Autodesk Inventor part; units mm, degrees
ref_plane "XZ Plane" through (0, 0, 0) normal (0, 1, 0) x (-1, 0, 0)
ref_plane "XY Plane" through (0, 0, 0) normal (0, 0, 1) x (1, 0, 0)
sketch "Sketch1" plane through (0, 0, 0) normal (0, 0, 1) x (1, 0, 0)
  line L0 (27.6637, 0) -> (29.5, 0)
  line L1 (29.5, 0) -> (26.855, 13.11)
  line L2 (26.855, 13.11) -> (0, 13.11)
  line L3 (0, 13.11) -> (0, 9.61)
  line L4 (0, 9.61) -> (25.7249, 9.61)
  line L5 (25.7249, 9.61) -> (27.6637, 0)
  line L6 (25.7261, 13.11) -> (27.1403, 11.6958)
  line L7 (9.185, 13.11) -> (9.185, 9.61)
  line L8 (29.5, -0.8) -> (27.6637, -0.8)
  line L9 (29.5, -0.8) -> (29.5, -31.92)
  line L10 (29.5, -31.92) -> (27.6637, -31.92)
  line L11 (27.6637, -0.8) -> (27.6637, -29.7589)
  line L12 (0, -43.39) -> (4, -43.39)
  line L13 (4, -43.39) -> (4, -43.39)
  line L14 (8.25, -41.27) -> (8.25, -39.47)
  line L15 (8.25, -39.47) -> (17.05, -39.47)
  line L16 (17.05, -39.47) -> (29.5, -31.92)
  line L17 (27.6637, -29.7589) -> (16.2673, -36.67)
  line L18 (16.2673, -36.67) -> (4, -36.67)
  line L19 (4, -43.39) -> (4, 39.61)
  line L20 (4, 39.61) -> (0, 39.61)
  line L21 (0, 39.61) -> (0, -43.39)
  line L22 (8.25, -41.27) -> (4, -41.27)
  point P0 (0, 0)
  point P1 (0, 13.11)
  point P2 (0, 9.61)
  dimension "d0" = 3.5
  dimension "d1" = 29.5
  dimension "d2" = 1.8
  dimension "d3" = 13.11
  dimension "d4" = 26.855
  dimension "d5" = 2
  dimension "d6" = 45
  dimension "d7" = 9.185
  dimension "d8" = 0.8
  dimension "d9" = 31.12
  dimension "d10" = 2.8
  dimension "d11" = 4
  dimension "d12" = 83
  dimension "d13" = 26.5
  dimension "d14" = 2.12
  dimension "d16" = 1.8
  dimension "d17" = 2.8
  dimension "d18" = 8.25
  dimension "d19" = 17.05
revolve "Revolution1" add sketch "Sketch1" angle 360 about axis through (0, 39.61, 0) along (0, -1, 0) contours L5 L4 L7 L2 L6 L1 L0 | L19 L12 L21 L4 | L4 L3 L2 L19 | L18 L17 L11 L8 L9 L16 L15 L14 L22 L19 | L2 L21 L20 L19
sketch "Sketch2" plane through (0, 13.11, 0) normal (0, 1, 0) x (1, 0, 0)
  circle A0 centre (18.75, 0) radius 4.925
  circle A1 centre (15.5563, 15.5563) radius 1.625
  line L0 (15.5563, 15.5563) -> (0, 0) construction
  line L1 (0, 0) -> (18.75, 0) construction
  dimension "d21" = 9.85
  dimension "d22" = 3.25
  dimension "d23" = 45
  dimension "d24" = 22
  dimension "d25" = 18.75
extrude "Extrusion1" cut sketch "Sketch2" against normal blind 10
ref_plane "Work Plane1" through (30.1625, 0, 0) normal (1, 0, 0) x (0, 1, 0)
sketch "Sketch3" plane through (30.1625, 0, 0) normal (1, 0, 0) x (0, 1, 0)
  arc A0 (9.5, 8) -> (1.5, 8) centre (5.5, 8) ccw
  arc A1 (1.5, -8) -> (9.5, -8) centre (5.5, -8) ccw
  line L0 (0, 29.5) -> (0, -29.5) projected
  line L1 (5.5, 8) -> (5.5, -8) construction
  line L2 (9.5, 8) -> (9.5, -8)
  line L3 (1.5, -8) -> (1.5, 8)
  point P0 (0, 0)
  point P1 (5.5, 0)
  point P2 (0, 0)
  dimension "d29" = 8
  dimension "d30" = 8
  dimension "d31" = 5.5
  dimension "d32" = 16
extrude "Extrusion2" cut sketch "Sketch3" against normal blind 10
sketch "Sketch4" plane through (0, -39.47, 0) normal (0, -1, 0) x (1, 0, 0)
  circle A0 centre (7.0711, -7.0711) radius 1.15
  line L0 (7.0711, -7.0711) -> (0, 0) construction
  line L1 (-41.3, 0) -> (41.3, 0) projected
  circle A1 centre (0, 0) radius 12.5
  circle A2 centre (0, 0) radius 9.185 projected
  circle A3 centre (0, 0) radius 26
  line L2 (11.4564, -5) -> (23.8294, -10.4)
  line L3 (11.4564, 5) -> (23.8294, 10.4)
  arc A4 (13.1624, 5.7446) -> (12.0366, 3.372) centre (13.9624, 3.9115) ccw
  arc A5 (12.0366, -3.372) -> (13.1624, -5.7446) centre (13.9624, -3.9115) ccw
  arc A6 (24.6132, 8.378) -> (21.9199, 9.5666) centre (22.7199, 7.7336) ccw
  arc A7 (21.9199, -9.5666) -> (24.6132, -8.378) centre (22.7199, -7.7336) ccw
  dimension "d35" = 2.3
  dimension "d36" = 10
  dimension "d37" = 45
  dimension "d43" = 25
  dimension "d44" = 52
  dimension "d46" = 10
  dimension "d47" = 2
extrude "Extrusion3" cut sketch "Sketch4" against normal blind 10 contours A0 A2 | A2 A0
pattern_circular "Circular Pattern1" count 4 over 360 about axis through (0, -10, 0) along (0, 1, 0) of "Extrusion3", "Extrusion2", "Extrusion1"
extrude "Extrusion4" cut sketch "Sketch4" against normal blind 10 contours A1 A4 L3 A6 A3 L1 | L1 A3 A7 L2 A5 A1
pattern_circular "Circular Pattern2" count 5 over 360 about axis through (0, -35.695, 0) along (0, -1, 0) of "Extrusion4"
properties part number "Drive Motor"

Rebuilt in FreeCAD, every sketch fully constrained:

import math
import FreeCAD as App
import Part
import Sketcher
Q = App.Units.Quantity

doc = App.newDocument("Part")
body = doc.addObject("PartDesign::Body", "Body")
body.AllowCompound = True

sketch1 = body.newObject("Sketcher::SketchObject", "Sketch")
sketch1.AttachmentSupport = (doc.getObject("XY_Plane"), [""])
sketch1.MapMode = "FlatFace"
sketch1.addGeometry([
    Part.LineSegment(App.Vector(25.7249, 9.61, 0), App.Vector(27.6637, 0, 0)),
    Part.LineSegment(App.Vector(27.6637, 0, 0), App.Vector(29.5, 0, 0)),
    Part.LineSegment(App.Vector(29.5, 0, 0), App.Vector(27.14032, 11.695804, 0)),
    Part.LineSegment(App.Vector(27.1403, 11.6958, 0), App.Vector(25.7261, 13.11, 0)),
    Part.LineSegment(App.Vector(25.7261, 13.11, 0), App.Vector(9.185, 13.11, 0)),
    Part.LineSegment(App.Vector(9.185, 13.11, 0), App.Vector(9.185, 9.61, 0)),
    Part.LineSegment(App.Vector(9.185, 9.61, 0), App.Vector(25.7249, 9.61, 0)),
    Part.LineSegment(App.Vector(4, -36.67, 0), App.Vector(4, 39.61, 0)),
    Part.LineSegment(App.Vector(4, 39.61, 0), App.Vector(0, 39.61, 0)),
    Part.LineSegment(App.Vector(0, 39.61, 0), App.Vector(0, -43.39, 0)),
    Part.LineSegment(App.Vector(0, -43.39, 0), App.Vector(4, -43.39, 0)),
    Part.LineSegment(App.Vector(4, -43.39, 0), App.Vector(4, -41.27, 0)),
    Part.LineSegment(App.Vector(4, -41.27, 0), App.Vector(8.25, -41.27, 0)),
    Part.LineSegment(App.Vector(8.25, -41.27, 0), App.Vector(8.25, -39.47, 0)),
    Part.LineSegment(App.Vector(8.25, -39.47, 0), App.Vector(17.05, -39.47, 0)),
    Part.LineSegment(App.Vector(17.05, -39.47, 0), App.Vector(29.5, -31.92, 0)),
    Part.LineSegment(App.Vector(29.5, -31.92, 0), App.Vector(29.5, -0.8, 0)),
    Part.LineSegment(App.Vector(29.5, -0.8, 0), App.Vector(27.6637, -0.8, 0)),
    Part.LineSegment(App.Vector(27.6637, -0.8, 0), App.Vector(27.6637, -29.7589, 0)),
    Part.LineSegment(App.Vector(27.6637, -29.7589, 0), App.Vector(16.2673, -36.67, 0)),
    Part.LineSegment(App.Vector(16.2673, -36.67, 0), App.Vector(4, -36.67, 0)),
], False)
sketch1.addConstraint([
    Sketcher.Constraint("Coincident", 0, 2, 1, 1),
    Sketcher.Constraint("Coincident", 1, 2, 2, 1),
    Sketcher.Constraint("Coincident", 2, 2, 3, 1),
    Sketcher.Constraint("Coincident", 3, 2, 4, 1),
    Sketcher.Constraint("Coincident", 4, 2, 5, 1),
    Sketcher.Constraint("Coincident", 5, 2, 6, 1),
    Sketcher.Constraint("Coincident", 6, 2, 0, 1),
    Sketcher.Constraint("Coincident", 7, 2, 8, 1),
    Sketcher.Constraint("Coincident", 8, 2, 9, 1),
    Sketcher.Constraint("Coincident", 9, 2, 10, 1),
    Sketcher.Constraint("Coincident", 10, 2, 11, 1),
    Sketcher.Constraint("Coincident", 11, 2, 12, 1),
    Sketcher.Constraint("Coincident", 12, 2, 13, 1),
    Sketcher.Constraint("Coincident", 13, 2, 14, 1),
    Sketcher.Constraint("Coincident", 14, 2, 15, 1),
    Sketcher.Constraint("Coincident", 15, 2, 16, 1),
    Sketcher.Constraint("Coincident", 16, 2, 17, 1),
    Sketcher.Constraint("Coincident", 17, 2, 18, 1),
    Sketcher.Constraint("Coincident", 18, 2, 19, 1),
    Sketcher.Constraint("Coincident", 19, 2, 20, 1),
    Sketcher.Constraint("Coincident", 20, 2, 7, 1),
    Sketcher.Constraint("Horizontal", 1),
    Sketcher.Constraint("Horizontal", 4),
    Sketcher.Constraint("Vertical", 5),
    Sketcher.Constraint("Horizontal", 6),
    Sketcher.Constraint("Vertical", 7),
    Sketcher.Constraint("Horizontal", 8),
    Sketcher.Constraint("Vertical", 9),
    Sketcher.Constraint("Horizontal", 10),
    Sketcher.Constraint("Vertical", 11),
    Sketcher.Constraint("Horizontal", 12),
    Sketcher.Constraint("Vertical", 13),
    Sketcher.Constraint("Horizontal", 14),
    Sketcher.Constraint("Vertical", 16),
    Sketcher.Constraint("Horizontal", 17),
    Sketcher.Constraint("Vertical", 18),
    Sketcher.Constraint("Horizontal", 20),
    Sketcher.Constraint("PointOnObject", 0, 2, -1),
    Sketcher.Constraint("PointOnObject", 8, 2, -2),
    Sketcher.Constraint("Parallel", 0, 2),
    Sketcher.Constraint("Parallel", 15, 19),
    Sketcher.Constraint("Vertical", 7, 2, 10, 2),
    Sketcher.Constraint("Vertical", 1, 2, 15, 2),
    Sketcher.Constraint("Vertical", 0, 2, 17, 2),
    Sketcher.Constraint("DistanceX", 8, 2, 8, 1, Q("4 mm")),
    Sketcher.Constraint("DistanceY", 9, 2, 9, 1, Q("83 mm")),
    Sketcher.Constraint("Distance", 3, Q("2 mm")),
    Sketcher.Constraint("DistanceY", 5, 2, 5, 1, Q("3.5 mm")),
    Sketcher.Constraint("DistanceY", 13, 1, 13, 2, Q("1.8 mm")),
    Sketcher.Constraint("DistanceY", 11, 1, 11, 2, Q("2.12 mm")),
    Sketcher.Constraint("DistanceY", 16, 1, 16, 2, Q("31.12 mm")),
    Sketcher.Constraint("DistanceX", -1, 1, 1, 2, Q("29.5 mm")),
    Sketcher.Constraint("DistanceY", 16, 2, -1, 1, Q("0.8 mm")),
    Sketcher.Constraint("DistanceY", 4, 2, 7, 2, Q("26.5 mm")),
    Sketcher.Constraint("DistanceY", 14, 2, 19, 2, Q("2.8 mm")),
    Sketcher.Constraint("DistanceY", -1, 1, 3, 2, Q("13.11 mm")),
    Sketcher.Constraint("DistanceX", -1, 1, 12, 2, Q("8.25 mm")),
    Sketcher.Constraint("DistanceX", -1, 1, 14, 2, Q("17.05 mm")),
    Sketcher.Constraint("Angle", 3, Q("135 deg")),
    Sketcher.Constraint("DistanceX", -1, 1, 4, 2, Q("9.185 mm")),
    Sketcher.Constraint("DistanceX", 6, 1, 6, 2, Q("16.54 mm")),
    Sketcher.Constraint("DistanceX", 4, 2, 4, 1, Q("16.541 mm")),
    Sketcher.Constraint("DistanceY", 18, 2, 18, 1, Q("28.959 mm")),
])
revolution = body.newObject("PartDesign::Revolution", "Revolution")
revolution.Profile = sketch1
revolution.ReferenceAxis = (sketch1, ["V_Axis"])
revolution.Angle = 360

sketch2 = body.newObject("Sketcher::SketchObject", "Sketch001")
sketch2.AttachmentSupport = (doc.getObject("XZ_Plane"), [""])
sketch2.MapMode = "FlatFace"
sketch2.AttachmentOffset = App.Placement(App.Vector(0, 0, -13.11), App.Rotation())
sketch2.addGeometry([
    Part.Circle(App.Vector(18.75, 0, 0), App.Vector(0, 0, 1), 4.925),
    Part.Circle(App.Vector(15.5563, -15.5563, 0), App.Vector(0, 0, 1), 1.625),
], False)
sketch2.addConstraint([
    Sketcher.Constraint("PointOnObject", 0, 3, -1),
    Sketcher.Constraint("Diameter", 0, Q("9.85 mm")),
    Sketcher.Constraint("Diameter", 1, Q("3.25 mm")),
    Sketcher.Constraint("DistanceX", -1, 1, 0, 3, Q("18.75 mm")),
    Sketcher.Constraint("DistanceX", -1, 1, 1, 3, Q("15.5563 mm")),
    Sketcher.Constraint("DistanceY", 1, 3, -1, 1, Q("15.5563 mm")),
])
pocket1 = body.newObject("PartDesign::Pocket", "Pocket")
pocket1.Profile = sketch2
pocket1.Length = 10
pocket1.Reversed = True

sketch3 = body.newObject("Sketcher::SketchObject", "Sketch002")
sketch3.AttachmentSupport = (doc.getObject("YZ_Plane"), [""])
sketch3.MapMode = "FlatFace"
sketch3.AttachmentOffset = App.Placement(App.Vector(0, 0, 30.1625), App.Rotation())
sketch3.addGeometry([
    Part.LineSegment(App.Vector(9.5, -8, 0), App.Vector(9.5, 8, 0)),
    Part.ArcOfCircle(Part.Circle(App.Vector(5.5, 8, 0), App.Vector(0, 0, 1), 4), math.radians(0), math.radians(180)),
    Part.LineSegment(App.Vector(1.5, 8, 0), App.Vector(1.5, -8, 0)),
    Part.ArcOfCircle(Part.Circle(App.Vector(5.5, -8, 0), App.Vector(0, 0, 1), 4), math.radians(180), math.radians(360)),
], False)
sketch3.addConstraint([
    Sketcher.Constraint("Tangent", 0, 2, 1, 1),
    Sketcher.Constraint("Tangent", 1, 2, 2, 1),
    Sketcher.Constraint("Tangent", 2, 2, 3, 1),
    Sketcher.Constraint("Tangent", 3, 2, 0, 1),
    Sketcher.Constraint("Vertical", 0),
    Sketcher.Constraint("Vertical", 2),
    Sketcher.Constraint("Radius", 1, Q("4 mm")),
    Sketcher.Constraint("DistanceY", 0, 1, 0, 2, Q("16 mm")),
    Sketcher.Constraint("DistanceY", -1, 1, 1, 3, Q("8 mm")),
    Sketcher.Constraint("DistanceX", -1, 1, 1, 3, Q("5.5 mm")),
])
pocket2 = body.newObject("PartDesign::Pocket", "Pocket001")
pocket2.Profile = sketch3
pocket2.Length = 10

sketch4 = body.newObject("Sketcher::SketchObject", "Sketch003")
sketch4.AttachmentSupport = (doc.getObject("XZ_Plane"), [""])
sketch4.MapMode = "FlatFace"
sketch4.AttachmentOffset = App.Placement(App.Vector(0, 0, 39.47), App.Rotation())
sketch4.addGeometry(Part.Circle(App.Vector(7.0711, -7.0711, 0), App.Vector(0, 0, 1), 1.15), False)
sketch4.addConstraint([
    Sketcher.Constraint("Diameter", 0, Q("2.3 mm")),
    Sketcher.Constraint("DistanceX", -1, 1, 0, 3, Q("7.071 mm")),
    Sketcher.Constraint("DistanceY", 0, 3, -1, 1, Q("7.071 mm")),
])
pocket3 = body.newObject("PartDesign::Pocket", "Pocket002")
pocket3.Profile = sketch4
pocket3.Length = 10
doc.recompute()

polarpattern = body.newObject("PartDesign::PolarPattern", "PolarPattern")
polarpattern.Originals = [pocket3, pocket2, pocket1]
polarpattern.Axis = (doc.getObject("Y_Axis"), [""])
polarpattern.Angle = 360
polarpattern.Occurrences = 4
body.Tip = polarpattern

sketch5 = body.newObject("Sketcher::SketchObject", "Sketch004")
sketch5.AttachmentSupport = (doc.getObject("XZ_Plane"), [""])
sketch5.MapMode = "FlatFace"
sketch5.AttachmentOffset = App.Placement(App.Vector(0, 0, 39.47), App.Rotation())
sketch5.addGeometry([
    Part.ArcOfCircle(Part.Circle(App.Vector(0, 0, 0), App.Vector(0, 0, 1), 12.5), math.radians(-15.64998), math.radians(15.64998)),
    Part.ArcOfCircle(Part.Circle(App.Vector(13.9624, -3.9115, 0), App.Vector(0, 0, 1), 1.999941), math.radians(164.350139), math.radians(246.42262)),
    Part.LineSegment(App.Vector(13.162416, -5.744564, 0), App.Vector(21.919889, -9.566624, 0)),
    Part.ArcOfCircle(Part.Circle(App.Vector(22.7199, -7.7336, 0), App.Vector(0, 0, 1), 1.999972), math.radians(-113.578525), math.radians(-18.796423)),
    Part.ArcOfCircle(Part.Circle(App.Vector(0, 0, 0), App.Vector(0, 0, 1), 26), math.radians(-18.797879), math.radians(18.797879)),
    Part.ArcOfCircle(Part.Circle(App.Vector(22.7199, 7.7336, 0), App.Vector(0, 0, 1), 1.999959), math.radians(18.796423), math.radians(113.578525)),
    Part.LineSegment(App.Vector(21.919889, 9.566624, 0), App.Vector(13.162416, 5.744564, 0)),
    Part.ArcOfCircle(Part.Circle(App.Vector(13.9624, 3.9115, 0), App.Vector(0, 0, 1), 2.000064), math.radians(113.57738), math.radians(195.649861)),
], False)
sketch5.addConstraint([
    Sketcher.Constraint("Tangent", 0, 1, 1, 1),
    Sketcher.Constraint("Tangent", 1, 2, 2, 1),
    Sketcher.Constraint("Tangent", 2, 2, 3, 1),
    Sketcher.Constraint("Tangent", 3, 2, 4, 1),
    Sketcher.Constraint("Tangent", 4, 2, 5, 1),
    Sketcher.Constraint("Tangent", 5, 2, 6, 1),
    Sketcher.Constraint("Tangent", 6, 2, 7, 1),
    Sketcher.Constraint("Tangent", 7, 2, 0, 2),
    Sketcher.Constraint("Coincident", 0, 3, -1, 1),
    Sketcher.Constraint("Coincident", 4, 3, -1, 1),
    Sketcher.Constraint("Equal", 1, 3),
    Sketcher.Constraint("Equal", 3, 5),
    Sketcher.Constraint("Equal", 5, 7),
    Sketcher.Constraint("Symmetric", 2, 2, 5, 2, -1),
    Sketcher.Constraint("Radius", 1, Q("2 mm")),
    Sketcher.Constraint("Radius", 4, Q("26 mm")),
    Sketcher.Constraint("Radius", 0, Q("12.5 mm")),
    Sketcher.Constraint("DistanceX", 1, 2, 1, 3, Q("0.8 mm")),
    Sketcher.Constraint("DistanceX", -1, 1, 3, 3, Q("22.72 mm")),
])
pocket4 = body.newObject("PartDesign::Pocket", "Pocket003")
pocket4.Profile = sketch5
pocket4.Length = 10
doc.recompute()

polarpattern2 = body.newObject("PartDesign::PolarPattern", "PolarPattern001")
polarpattern2.Originals = [pocket4]
polarpattern2.Axis = (doc.getObject("Y_Axis"), [""])
polarpattern2.Angle = 360
polarpattern2.Occurrences = 5
body.Tip = polarpattern2

doc.recompute()
